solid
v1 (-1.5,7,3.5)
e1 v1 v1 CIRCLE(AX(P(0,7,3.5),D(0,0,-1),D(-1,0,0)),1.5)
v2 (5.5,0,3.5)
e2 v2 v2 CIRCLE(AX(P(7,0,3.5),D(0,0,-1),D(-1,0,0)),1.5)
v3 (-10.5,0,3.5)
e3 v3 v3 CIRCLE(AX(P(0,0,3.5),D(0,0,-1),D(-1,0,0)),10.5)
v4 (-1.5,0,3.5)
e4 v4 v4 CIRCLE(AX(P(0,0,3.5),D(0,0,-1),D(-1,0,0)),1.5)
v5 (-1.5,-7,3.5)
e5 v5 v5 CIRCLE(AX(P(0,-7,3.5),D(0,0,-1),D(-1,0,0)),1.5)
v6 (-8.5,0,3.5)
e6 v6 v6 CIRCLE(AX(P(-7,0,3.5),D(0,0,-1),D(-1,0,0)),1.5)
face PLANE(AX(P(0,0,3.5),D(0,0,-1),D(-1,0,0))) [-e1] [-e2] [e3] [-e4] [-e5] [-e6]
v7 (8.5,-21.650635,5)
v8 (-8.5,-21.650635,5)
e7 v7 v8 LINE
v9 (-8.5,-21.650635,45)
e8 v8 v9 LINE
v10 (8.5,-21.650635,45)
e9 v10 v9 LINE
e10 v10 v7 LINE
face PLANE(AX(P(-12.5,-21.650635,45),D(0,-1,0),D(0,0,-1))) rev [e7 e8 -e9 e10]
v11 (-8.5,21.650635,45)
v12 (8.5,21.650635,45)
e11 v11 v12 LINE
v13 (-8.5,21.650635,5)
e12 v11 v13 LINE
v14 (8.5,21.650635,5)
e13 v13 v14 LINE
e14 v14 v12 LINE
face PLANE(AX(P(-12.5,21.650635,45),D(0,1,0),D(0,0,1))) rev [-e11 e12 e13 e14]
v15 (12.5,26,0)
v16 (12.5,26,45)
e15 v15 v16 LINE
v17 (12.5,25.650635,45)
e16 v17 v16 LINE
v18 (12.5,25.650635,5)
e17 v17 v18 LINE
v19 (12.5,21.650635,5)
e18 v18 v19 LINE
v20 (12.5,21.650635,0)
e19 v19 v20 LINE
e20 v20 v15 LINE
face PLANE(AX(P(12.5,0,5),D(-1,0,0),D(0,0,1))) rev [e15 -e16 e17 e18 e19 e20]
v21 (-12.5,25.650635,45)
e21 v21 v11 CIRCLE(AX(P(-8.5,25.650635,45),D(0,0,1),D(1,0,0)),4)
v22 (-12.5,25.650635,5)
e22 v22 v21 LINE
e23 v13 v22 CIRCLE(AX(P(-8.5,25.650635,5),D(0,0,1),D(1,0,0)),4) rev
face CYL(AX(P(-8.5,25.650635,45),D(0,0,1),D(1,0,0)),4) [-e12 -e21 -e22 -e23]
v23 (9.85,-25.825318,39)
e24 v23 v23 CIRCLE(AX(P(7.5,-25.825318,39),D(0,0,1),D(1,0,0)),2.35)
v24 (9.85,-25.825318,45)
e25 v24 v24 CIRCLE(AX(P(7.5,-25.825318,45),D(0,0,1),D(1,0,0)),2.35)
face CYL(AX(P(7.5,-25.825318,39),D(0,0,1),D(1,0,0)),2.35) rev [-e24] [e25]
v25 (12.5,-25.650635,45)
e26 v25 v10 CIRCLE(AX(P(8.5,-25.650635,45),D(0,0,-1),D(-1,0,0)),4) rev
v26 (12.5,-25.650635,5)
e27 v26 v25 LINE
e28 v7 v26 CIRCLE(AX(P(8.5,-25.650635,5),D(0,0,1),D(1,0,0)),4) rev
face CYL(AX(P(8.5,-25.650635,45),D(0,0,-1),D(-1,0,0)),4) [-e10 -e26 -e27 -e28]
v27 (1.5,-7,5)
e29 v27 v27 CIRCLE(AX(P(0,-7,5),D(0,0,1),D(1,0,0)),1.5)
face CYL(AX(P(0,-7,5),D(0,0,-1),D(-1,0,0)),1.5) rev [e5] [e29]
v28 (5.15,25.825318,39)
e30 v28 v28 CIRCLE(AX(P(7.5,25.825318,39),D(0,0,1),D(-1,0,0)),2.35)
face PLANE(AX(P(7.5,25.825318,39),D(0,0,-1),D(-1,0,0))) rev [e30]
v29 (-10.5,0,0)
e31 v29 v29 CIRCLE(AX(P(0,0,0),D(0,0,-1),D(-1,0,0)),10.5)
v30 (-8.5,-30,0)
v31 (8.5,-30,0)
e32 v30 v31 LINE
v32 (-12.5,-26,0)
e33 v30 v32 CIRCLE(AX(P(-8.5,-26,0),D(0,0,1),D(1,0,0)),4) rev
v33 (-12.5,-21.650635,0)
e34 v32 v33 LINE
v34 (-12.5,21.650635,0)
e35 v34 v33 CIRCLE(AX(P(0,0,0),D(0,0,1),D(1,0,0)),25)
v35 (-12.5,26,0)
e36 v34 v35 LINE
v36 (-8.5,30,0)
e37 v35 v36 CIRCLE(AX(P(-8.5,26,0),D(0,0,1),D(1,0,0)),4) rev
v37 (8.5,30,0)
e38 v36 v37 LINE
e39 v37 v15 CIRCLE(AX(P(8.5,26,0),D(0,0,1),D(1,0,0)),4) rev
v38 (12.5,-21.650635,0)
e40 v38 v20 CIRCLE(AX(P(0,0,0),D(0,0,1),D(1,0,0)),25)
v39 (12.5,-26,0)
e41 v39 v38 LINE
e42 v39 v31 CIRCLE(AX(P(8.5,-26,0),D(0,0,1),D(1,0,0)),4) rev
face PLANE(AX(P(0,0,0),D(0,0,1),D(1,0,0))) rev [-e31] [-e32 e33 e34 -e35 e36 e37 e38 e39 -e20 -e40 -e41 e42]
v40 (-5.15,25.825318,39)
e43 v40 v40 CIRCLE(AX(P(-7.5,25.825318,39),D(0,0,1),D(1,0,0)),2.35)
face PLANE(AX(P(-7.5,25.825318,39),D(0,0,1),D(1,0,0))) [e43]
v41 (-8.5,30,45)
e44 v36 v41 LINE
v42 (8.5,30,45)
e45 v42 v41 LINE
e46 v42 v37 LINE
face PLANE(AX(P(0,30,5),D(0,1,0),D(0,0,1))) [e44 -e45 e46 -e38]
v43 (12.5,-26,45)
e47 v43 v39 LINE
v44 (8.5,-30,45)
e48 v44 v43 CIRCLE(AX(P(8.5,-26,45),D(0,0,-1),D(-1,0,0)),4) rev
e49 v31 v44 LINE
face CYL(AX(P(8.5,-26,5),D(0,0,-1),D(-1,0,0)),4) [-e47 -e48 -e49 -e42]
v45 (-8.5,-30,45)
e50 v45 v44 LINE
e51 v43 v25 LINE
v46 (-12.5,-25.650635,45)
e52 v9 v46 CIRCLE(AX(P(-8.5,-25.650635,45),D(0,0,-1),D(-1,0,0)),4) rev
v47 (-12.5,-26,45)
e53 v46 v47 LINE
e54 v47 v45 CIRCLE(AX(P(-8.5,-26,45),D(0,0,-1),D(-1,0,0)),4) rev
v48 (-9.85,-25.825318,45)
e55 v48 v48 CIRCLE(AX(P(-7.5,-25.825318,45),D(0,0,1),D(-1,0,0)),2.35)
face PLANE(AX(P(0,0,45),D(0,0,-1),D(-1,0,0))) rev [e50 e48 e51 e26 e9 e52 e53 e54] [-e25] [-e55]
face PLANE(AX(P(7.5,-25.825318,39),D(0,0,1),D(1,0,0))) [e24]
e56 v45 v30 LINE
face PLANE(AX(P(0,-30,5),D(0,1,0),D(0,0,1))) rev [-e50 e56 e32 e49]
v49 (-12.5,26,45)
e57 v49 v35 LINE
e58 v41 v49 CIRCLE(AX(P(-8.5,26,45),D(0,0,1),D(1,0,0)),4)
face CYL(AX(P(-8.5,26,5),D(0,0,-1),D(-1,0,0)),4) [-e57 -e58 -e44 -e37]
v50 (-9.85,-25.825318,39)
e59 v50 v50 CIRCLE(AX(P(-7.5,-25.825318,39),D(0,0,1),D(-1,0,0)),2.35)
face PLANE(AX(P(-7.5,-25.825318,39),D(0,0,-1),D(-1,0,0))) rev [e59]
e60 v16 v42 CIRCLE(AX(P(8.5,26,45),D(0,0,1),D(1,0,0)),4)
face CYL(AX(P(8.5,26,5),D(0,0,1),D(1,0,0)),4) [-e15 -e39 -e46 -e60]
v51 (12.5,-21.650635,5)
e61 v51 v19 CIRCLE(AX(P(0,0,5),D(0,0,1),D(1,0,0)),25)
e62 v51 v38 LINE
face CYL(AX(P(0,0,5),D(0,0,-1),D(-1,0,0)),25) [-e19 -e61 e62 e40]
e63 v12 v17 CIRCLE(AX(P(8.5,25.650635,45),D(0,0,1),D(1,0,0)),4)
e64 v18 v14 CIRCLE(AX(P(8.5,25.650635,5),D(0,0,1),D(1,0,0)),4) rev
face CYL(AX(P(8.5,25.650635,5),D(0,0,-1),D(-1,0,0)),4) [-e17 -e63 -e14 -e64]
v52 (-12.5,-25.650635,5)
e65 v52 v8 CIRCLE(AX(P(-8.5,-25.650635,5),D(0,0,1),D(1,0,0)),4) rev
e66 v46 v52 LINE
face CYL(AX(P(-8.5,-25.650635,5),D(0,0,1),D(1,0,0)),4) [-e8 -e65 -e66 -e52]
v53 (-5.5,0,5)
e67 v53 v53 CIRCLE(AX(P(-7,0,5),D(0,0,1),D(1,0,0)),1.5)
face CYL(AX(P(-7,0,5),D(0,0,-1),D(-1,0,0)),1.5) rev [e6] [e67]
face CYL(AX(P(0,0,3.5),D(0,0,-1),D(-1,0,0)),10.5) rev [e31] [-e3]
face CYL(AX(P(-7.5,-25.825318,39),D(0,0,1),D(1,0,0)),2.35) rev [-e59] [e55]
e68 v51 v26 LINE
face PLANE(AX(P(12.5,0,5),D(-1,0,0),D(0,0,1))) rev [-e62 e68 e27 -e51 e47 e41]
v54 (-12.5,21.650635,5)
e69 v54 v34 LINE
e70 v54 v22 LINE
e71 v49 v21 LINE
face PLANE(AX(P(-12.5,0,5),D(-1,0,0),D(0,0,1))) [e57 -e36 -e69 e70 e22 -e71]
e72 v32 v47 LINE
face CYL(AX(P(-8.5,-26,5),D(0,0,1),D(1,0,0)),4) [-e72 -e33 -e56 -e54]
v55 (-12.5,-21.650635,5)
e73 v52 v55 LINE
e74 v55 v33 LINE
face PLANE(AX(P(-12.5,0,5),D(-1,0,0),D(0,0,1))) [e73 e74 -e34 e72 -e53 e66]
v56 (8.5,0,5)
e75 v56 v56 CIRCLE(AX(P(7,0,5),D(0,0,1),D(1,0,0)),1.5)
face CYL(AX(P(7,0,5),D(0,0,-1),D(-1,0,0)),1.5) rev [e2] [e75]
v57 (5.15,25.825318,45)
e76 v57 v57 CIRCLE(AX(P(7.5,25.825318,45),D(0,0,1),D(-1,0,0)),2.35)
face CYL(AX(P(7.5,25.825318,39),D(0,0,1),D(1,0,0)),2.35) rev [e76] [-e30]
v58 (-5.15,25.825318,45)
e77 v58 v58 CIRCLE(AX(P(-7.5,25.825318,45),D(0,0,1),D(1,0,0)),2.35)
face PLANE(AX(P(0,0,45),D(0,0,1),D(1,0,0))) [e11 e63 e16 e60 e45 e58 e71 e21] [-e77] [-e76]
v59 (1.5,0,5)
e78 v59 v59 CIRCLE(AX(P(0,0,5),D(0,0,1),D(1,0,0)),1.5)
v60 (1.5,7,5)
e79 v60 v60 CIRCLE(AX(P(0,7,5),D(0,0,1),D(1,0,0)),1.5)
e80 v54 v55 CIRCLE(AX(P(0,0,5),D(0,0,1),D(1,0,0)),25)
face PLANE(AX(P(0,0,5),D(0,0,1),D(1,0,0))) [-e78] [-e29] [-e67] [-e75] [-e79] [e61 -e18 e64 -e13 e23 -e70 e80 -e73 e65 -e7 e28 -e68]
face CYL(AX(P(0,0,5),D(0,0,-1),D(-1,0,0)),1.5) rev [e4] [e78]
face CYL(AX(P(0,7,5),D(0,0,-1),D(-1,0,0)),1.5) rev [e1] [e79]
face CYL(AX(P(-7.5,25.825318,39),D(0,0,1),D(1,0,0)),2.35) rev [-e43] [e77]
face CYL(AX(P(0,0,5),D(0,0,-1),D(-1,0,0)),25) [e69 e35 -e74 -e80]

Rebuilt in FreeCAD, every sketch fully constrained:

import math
import FreeCAD as App
import Part
import Sketcher

V = App.Vector
Q = App.Units.Quantity


def edges_at(feature, points):
    """Names of the edges that pass closest to the given points."""
    edges = feature.Shape.Edges
    near = lambda p: min(range(len(edges)), key=lambda i: edges[i].distToShape(Part.Vertex(*p))[0])
    return sorted({f"Edge{near(p) + 1}" for p in points})

doc = App.newDocument("Part")
params = doc.addObject("Spreadsheet::Sheet", "Params")
for row, (alias, value) in enumerate([
    ("sketch1_diameter", "3 mm"),
    ("sketch1_radius", "25 mm"),
    ("sketch1_width", "25 mm"),
    ("pad1_length", "5 mm"),
    ("sketch2_diameter", "21 mm"),
    ("pocket1_length", "3.5 mm"),
    ("sketch3_width", "25 mm"),
    ("pad2_length", "40 mm"),
    ("fillet_radius", "4 mm"),
    ("sketch4_diameter", "4.7 mm"),
    ("pocket2_length", "6 mm"),
], start=1):
    params.set(f"A{row}", alias)
    params.set(f"B{row}", "=" + value)
    params.setAlias(f"B{row}", alias)

body = doc.addObject("PartDesign::Body", "Body")

# Sketch on XY plane
sketch1 = body.newObject("Sketcher::SketchObject", "Sketch")
sketch1.AttachmentSupport = (doc.getObject("XY_Plane"), [""])
sketch1.MapMode = "FlatFace"
sketch1.addGeometry([
    Part.ArcOfCircle(Part.Circle(V(0, 0, 0), V(0, 0, 1), 25), math.radians(120), math.radians(240)),  # 0
    Part.LineSegment(V(-12.5, -21.650635, 0), V(-12.5, -30, 0)),  # 1
    Part.LineSegment(V(-12.5, -30, 0), V(12.5, -30, 0)),  # 2
    Part.LineSegment(V(12.5, -30, 0), V(12.5, -21.650635, 0)),  # 3
    Part.ArcOfCircle(Part.Circle(V(0, 0, 0), V(0, 0, 1), 25), math.radians(-60), math.radians(0)),  # 4
    Part.ArcOfCircle(Part.Circle(V(0, 0, 0), V(0, 0, 1), 25), math.radians(0), math.radians(60)),  # 5
    Part.LineSegment(V(12.5, 21.650635, 0), V(12.5, 30, 0)),  # 6
    Part.LineSegment(V(12.5, 30, 0), V(-12.5, 30, 0)),  # 7
    Part.LineSegment(V(-12.5, 30, 0), V(-12.5, 21.650635, 0)),  # 8
    Part.Circle(V(0, 7, 0), V(0, 0, 1), 1.5),  # 9
    Part.Circle(V(0, -7, 0), V(0, 0, 1), 1.5),  # 10
    Part.Circle(V(-7, 0, 0), V(0, 0, 1), 1.5),  # 11
    Part.Circle(V(0, 0, 0), V(0, 0, 1), 1.5),  # 12
    Part.Circle(V(7, 0, 0), V(0, 0, 1), 1.5),  # 13
], False)
sketch1.addConstraint([
    Sketcher.Constraint("Coincident", 0, 2, 1, 1),
    Sketcher.Constraint("Coincident", 1, 2, 2, 1),
    Sketcher.Constraint("Coincident", 2, 2, 3, 1),
    Sketcher.Constraint("Coincident", 3, 2, 4, 1),
    Sketcher.Constraint("Tangent", 4, 2, 5, 1),
    Sketcher.Constraint("Coincident", 5, 2, 6, 1),
    Sketcher.Constraint("Coincident", 6, 2, 7, 1),
    Sketcher.Constraint("Coincident", 7, 2, 8, 1),
    Sketcher.Constraint("Coincident", 8, 2, 0, 1),
    Sketcher.Constraint("Vertical", 1),
    Sketcher.Constraint("Horizontal", 2),
    Sketcher.Constraint("Vertical", 3),
    Sketcher.Constraint("Vertical", 6),
    Sketcher.Constraint("Horizontal", 7),
    Sketcher.Constraint("Vertical", 8),
    Sketcher.Constraint("Coincident", 0, 3, -1, 1),
    Sketcher.Constraint("Coincident", 4, 3, -1, 1),
    Sketcher.Constraint("Coincident", 12, 3, -1, 1),
    Sketcher.Constraint("Equal", 0, 4),
    Sketcher.Constraint("Equal", 4, 5),
    Sketcher.Constraint("Equal", 9, 10),
    Sketcher.Constraint("Equal", 10, 11),
    Sketcher.Constraint("Equal", 11, 12),
    Sketcher.Constraint("Equal", 12, 13),
    Sketcher.Constraint("Symmetric", 9, 3, 10, 3, -1, 1),
    Sketcher.Constraint("Symmetric", 11, 3, 13, 3, -1, 1),
    Sketcher.Constraint("Symmetric", 1, 2, 6, 2, -1, 1),
    Sketcher.Constraint("PointOnObject", 9, 3, -2),
    Sketcher.Constraint("PointOnObject", 11, 3, -1),
    Sketcher.Constraint("PointOnObject", 4, 2, -1),
    Sketcher.Constraint("Horizontal", 0, 2, 3, 2),
    Sketcher.Constraint("Horizontal", 5, 2, 8, 2),
    Sketcher.Constraint("Diameter", 9, Q("3 mm")),
    Sketcher.Constraint("Radius", 0, Q("25 mm")),
    Sketcher.Constraint("DistanceX", 2, 1, 2, 2, Q("25 mm")),
    Sketcher.Constraint("DistanceY", -1, 1, 9, 3, Q("7 mm")),
    Sketcher.Constraint("DistanceX", 11, 3, -1, 1, Q("7 mm")),
    Sketcher.Constraint("DistanceY", 1, 2, -1, 1, Q("30 mm")),
])
sketch1.setExpression("Constraints[32]", "Params.sketch1_diameter")
sketch1.setExpression("Constraints[33]", "Params.sketch1_radius")
sketch1.setExpression("Constraints[34]", "Params.sketch1_width")
pad1 = body.newObject("PartDesign::Pad", "Pad")
pad1.Profile = sketch1
pad1.setExpression("Length", "Params.pad1_length")

# Sketch on XY plane
sketch2 = body.newObject("Sketcher::SketchObject", "Sketch001")
sketch2.AttachmentSupport = (doc.getObject("XY_Plane"), [""])
sketch2.MapMode = "FlatFace"
sketch2.addGeometry(Part.Circle(V(0, 0, 0), V(0, 0, 1), 10.5), False)
sketch2.addConstraint([
    Sketcher.Constraint("Coincident", 0, 3, -1, 1),
    Sketcher.Constraint("Diameter", 0, Q("21 mm")),
])
sketch2.setExpression("Constraints[1]", "Params.sketch2_diameter")
pocket1 = body.newObject("PartDesign::Pocket", "Pocket")
pocket1.Profile = sketch2
pocket1.setExpression("Length", "Params.pocket1_length")
pocket1.Reversed = True

# Sketch on XY plane
sketch3 = body.newObject("Sketcher::SketchObject", "Sketch002")
sketch3.AttachmentSupport = (doc.getObject("XY_Plane"), [""])
sketch3.MapMode = "FlatFace"
sketch3.AttachmentOffset = App.Placement(V(0, 0, 5), App.Rotation())
sketch3.addGeometry([
    Part.LineSegment(V(-12.5, 30, 0), V(-12.5, 21.650635, 0)),  # 0
    Part.LineSegment(V(-12.5, 21.650635, 0), V(12.5, 21.650635, 0)),  # 1
    Part.LineSegment(V(12.5, 21.650635, 0), V(12.5, 30, 0)),  # 2
    Part.LineSegment(V(12.5, 30, 0), V(-12.5, 30, 0)),  # 3
    Part.LineSegment(V(-12.5, -21.650635, 0), V(-12.5, -30, 0)),  # 4
    Part.LineSegment(V(-12.5, -30, 0), V(12.5, -30, 0)),  # 5
    Part.LineSegment(V(12.5, -30, 0), V(12.5, -21.650635, 0)),  # 6
    Part.LineSegment(V(12.5, -21.650635, 0), V(-12.5, -21.650635, 0)),  # 7
], False)
sketch3.addConstraint([
    Sketcher.Constraint("Coincident", 0, 2, 1, 1),
    Sketcher.Constraint("Coincident", 1, 2, 2, 1),
    Sketcher.Constraint("Coincident", 2, 2, 3, 1),
    Sketcher.Constraint("Coincident", 3, 2, 0, 1),
    Sketcher.Constraint("Coincident", 4, 2, 5, 1),
    Sketcher.Constraint("Coincident", 5, 2, 6, 1),
    Sketcher.Constraint("Coincident", 6, 2, 7, 1),
    Sketcher.Constraint("Coincident", 7, 2, 4, 1),
    Sketcher.Constraint("Vertical", 0),
    Sketcher.Constraint("Horizontal", 1),
    Sketcher.Constraint("Vertical", 2),
    Sketcher.Constraint("Horizontal", 3),
    Sketcher.Constraint("Vertical", 4),
    Sketcher.Constraint("Horizontal", 5),
    Sketcher.Constraint("Vertical", 6),
    Sketcher.Constraint("Horizontal", 7),
    Sketcher.Constraint("Symmetric", 2, 2, 4, 2, -1, 1),
    Sketcher.Constraint("Symmetric", 0, 2, 6, 2, -1, 1),
    Sketcher.Constraint("Vertical", 3, 2, 4, 2),
    Sketcher.Constraint("DistanceX", 1, 1, 1, 2, Q("25 mm")),
    Sketcher.Constraint("DistanceY", -1, 1, 2, 2, Q("30 mm")),
    Sketcher.Constraint("DistanceY", 0, 2, 0, 1, Q("8.349365 mm")),
])
sketch3.setExpression("Constraints[19]", "Params.sketch3_width")
pad2 = body.newObject("PartDesign::Pad", "Pad001")
pad2.Profile = sketch3
pad2.setExpression("Length", "Params.pad2_length")
doc.recompute()

fillet = body.newObject("PartDesign::Fillet", "Fillet")
fillet.Base = (pad2, edges_at(pad2, [
    (-12.5, 30, 25),
    (12.5, 30, 25),
    (12.5, -30, 25),
    (-12.5, -30, 25),
    (-12.5, 21.651, 25),
    (12.5, 21.651, 25),
    (-12.5, -21.651, 25),
    (12.5, -21.651, 25),
]))
fillet.setExpression("Radius", "Params.fillet_radius")

# Sketch on XY plane
sketch4 = body.newObject("Sketcher::SketchObject", "Sketch003")
sketch4.AttachmentSupport = (doc.getObject("XY_Plane"), [""])
sketch4.MapMode = "FlatFace"
sketch4.AttachmentOffset = App.Placement(V(0, 0, 45), App.Rotation())
sketch4.addGeometry([
    Part.Circle(V(-7.5, 25.825318, 0), V(0, 0, 1), 2.35),
    Part.Circle(V(7.5, 25.825318, 0), V(0, 0, 1), 2.35),
    Part.Circle(V(7.5, -25.825318, 0), V(0, 0, 1), 2.35),
    Part.Circle(V(-7.5, -25.825318, 0), V(0, 0, 1), 2.35),
], False)
sketch4.addConstraint([
    Sketcher.Constraint("Equal", 0, 1),
    Sketcher.Constraint("Equal", 1, 2),
    Sketcher.Constraint("Equal", 2, 3),
    Sketcher.Constraint("Symmetric", 0, 3, 2, 3, -1, 1),
    Sketcher.Constraint("Symmetric", 1, 3, 3, 3, -1, 1),
    Sketcher.Constraint("Symmetric", 0, 3, 1, 3, -2),
    Sketcher.Constraint("Diameter", 0, Q("4.7 mm")),
    Sketcher.Constraint("DistanceX", 0, 3, 1, 3, Q("15 mm")),
    Sketcher.Constraint("DistanceY", -1, 1, 0, 3, Q("25.825318 mm")),
])
sketch4.setExpression("Constraints[6]", "Params.sketch4_diameter")
pocket2 = body.newObject("PartDesign::Pocket", "Pocket001")
pocket2.Profile = sketch4
pocket2.setExpression("Length", "Params.pocket2_length")

doc.recompute()
